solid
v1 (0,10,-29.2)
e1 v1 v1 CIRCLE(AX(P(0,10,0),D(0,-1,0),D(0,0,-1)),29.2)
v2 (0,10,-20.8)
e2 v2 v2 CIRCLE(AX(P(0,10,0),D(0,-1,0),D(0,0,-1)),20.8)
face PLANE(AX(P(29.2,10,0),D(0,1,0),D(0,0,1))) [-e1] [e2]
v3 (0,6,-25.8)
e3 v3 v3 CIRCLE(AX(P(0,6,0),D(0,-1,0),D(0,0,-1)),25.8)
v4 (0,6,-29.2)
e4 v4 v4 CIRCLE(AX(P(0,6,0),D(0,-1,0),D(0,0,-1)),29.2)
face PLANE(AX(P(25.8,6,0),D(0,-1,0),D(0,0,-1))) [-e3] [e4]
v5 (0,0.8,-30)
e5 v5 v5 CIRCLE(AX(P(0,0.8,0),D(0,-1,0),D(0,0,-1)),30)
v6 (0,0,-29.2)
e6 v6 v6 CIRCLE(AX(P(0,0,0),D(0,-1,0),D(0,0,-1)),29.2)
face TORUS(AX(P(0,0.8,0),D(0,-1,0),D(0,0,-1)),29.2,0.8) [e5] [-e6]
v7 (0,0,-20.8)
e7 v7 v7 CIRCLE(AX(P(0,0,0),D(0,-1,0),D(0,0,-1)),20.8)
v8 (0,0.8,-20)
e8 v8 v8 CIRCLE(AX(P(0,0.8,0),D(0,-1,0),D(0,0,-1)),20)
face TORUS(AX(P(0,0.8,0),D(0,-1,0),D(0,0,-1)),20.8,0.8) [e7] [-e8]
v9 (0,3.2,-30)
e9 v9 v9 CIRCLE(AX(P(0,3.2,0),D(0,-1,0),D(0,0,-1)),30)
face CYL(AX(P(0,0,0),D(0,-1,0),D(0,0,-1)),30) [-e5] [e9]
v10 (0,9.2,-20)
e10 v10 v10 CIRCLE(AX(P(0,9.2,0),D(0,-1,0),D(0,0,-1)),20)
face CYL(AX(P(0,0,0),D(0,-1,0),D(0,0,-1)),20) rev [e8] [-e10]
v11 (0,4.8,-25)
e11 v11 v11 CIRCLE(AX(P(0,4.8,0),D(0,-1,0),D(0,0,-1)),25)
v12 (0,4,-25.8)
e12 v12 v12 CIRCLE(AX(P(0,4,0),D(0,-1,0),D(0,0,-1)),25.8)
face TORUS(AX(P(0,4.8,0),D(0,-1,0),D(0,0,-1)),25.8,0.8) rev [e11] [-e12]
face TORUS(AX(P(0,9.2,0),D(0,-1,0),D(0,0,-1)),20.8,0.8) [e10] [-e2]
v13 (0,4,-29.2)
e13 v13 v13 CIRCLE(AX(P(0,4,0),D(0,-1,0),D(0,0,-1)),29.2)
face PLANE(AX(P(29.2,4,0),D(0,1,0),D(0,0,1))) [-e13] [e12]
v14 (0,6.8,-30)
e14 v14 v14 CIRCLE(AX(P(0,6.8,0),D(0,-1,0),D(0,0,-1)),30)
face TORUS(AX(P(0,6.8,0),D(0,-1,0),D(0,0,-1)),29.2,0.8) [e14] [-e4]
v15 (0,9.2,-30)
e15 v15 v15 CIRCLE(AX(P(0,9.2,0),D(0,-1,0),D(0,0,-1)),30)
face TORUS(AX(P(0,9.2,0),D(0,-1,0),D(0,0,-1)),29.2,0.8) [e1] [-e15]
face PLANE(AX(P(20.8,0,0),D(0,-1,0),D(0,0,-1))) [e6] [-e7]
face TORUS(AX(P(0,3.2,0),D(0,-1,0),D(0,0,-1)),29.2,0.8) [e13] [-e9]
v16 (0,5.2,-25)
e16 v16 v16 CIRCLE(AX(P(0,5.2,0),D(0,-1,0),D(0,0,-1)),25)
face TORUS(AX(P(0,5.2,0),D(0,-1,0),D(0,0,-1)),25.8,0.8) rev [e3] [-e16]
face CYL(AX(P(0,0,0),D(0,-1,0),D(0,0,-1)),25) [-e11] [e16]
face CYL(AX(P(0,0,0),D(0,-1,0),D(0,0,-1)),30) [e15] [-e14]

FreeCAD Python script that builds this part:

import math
import FreeCAD as App
import Part
import Sketcher
from FreeCAD import Vector

doc = App.newDocument("Part")
params = doc.addObject("Spreadsheet::Sheet", "Params")
for row, (alias, value) in enumerate([
    ("sketch1_radius", "0.8 mm"),
    ("sketch1_width", "8.4 mm"),
    ("sketch1_width2", "3.4 mm"),
    ("sketch1_height", "2.4 mm"),
    ("revolution_angle", "360 deg"),
], start=1):
    params.set(f"A{row}", alias)
    params.set(f"B{row}", "=" + value)
    params.setAlias(f"B{row}", alias)

body = doc.addObject("PartDesign::Body", "Body")

# Sketch on XY plane
sketch1 = doc.addObject("Sketcher::SketchObject", "Sketch")
body.addObject(sketch1)
sketch1.AttachmentSupport = (doc.XY_Plane, [""])
sketch1.MapMode = "FlatFace"
sketch1.addGeometry(Part.LineSegment(Vector(20, 9.2, 0), Vector(20, 0.8, 0)), False)
sketch1.addGeometry(Part.ArcOfCircle(Part.Circle(Vector(20.8, 0.8, 0), Vector(0, 0, 1), 0.8), math.radians(180), math.radians(270)), False)
sketch1.addGeometry(Part.LineSegment(Vector(20.8, 0, 0), Vector(29.2, 0, 0)), False)
sketch1.addGeometry(Part.ArcOfCircle(Part.Circle(Vector(29.2, 0.8, 0), Vector(0, 0, 1), 0.8), math.radians(-90), math.radians(0)), False)
sketch1.addGeometry(Part.LineSegment(Vector(30, 0.8, 0), Vector(30, 3.2, 0)), False)
sketch1.addGeometry(Part.ArcOfCircle(Part.Circle(Vector(29.2, 3.2, 0), Vector(0, 0, 1), 0.8), math.radians(0), math.radians(90)), False)
sketch1.addGeometry(Part.LineSegment(Vector(29.2, 4, 0), Vector(25.8, 4, 0)), False)
sketch1.addGeometry(Part.ArcOfCircle(Part.Circle(Vector(25.8, 4.8, 0), Vector(0, 0, 1), 0.8), math.radians(180), math.radians(270)), False)
sketch1.addGeometry(Part.LineSegment(Vector(25, 4.8, 0), Vector(25, 5.2, 0)), False)
sketch1.addGeometry(Part.ArcOfCircle(Part.Circle(Vector(25.8, 5.2, 0), Vector(0, 0, 1), 0.8), math.radians(90), math.radians(180)), False)
sketch1.addGeometry(Part.LineSegment(Vector(25.8, 6, 0), Vector(29.2, 6, 0)), False)
sketch1.addGeometry(Part.ArcOfCircle(Part.Circle(Vector(29.2, 6.8, 0), Vector(0, 0, 1), 0.8), math.radians(-90), math.radians(0)), False)
sketch1.addGeometry(Part.LineSegment(Vector(30, 6.8, 0), Vector(30, 9.2, 0)), False)
sketch1.addGeometry(Part.ArcOfCircle(Part.Circle(Vector(29.2, 9.2, 0), Vector(0, 0, 1), 0.8), math.radians(0), math.radians(90)), False)
sketch1.addGeometry(Part.LineSegment(Vector(29.2, 10, 0), Vector(20.8, 10, 0)), False)
sketch1.addGeometry(Part.ArcOfCircle(Part.Circle(Vector(20.8, 9.2, 0), Vector(0, 0, 1), 0.8), math.radians(90), math.radians(180)), False)
sketch1.addConstraint(Sketcher.Constraint("Tangent", 0, 2, 1, 1))
sketch1.addConstraint(Sketcher.Constraint("Tangent", 1, 2, 2, 1))
sketch1.addConstraint(Sketcher.Constraint("Tangent", 2, 2, 3, 1))
sketch1.addConstraint(Sketcher.Constraint("Tangent", 3, 2, 4, 1))
sketch1.addConstraint(Sketcher.Constraint("Tangent", 4, 2, 5, 1))
sketch1.addConstraint(Sketcher.Constraint("Tangent", 5, 2, 6, 1))
sketch1.addConstraint(Sketcher.Constraint("Tangent", 6, 2, 7, 2))
sketch1.addConstraint(Sketcher.Constraint("Tangent", 7, 1, 8, 1))
sketch1.addConstraint(Sketcher.Constraint("Tangent", 8, 2, 9, 2))
sketch1.addConstraint(Sketcher.Constraint("Tangent", 9, 1, 10, 1))
sketch1.addConstraint(Sketcher.Constraint("Tangent", 10, 2, 11, 1))
sketch1.addConstraint(Sketcher.Constraint("Tangent", 11, 2, 12, 1))
sketch1.addConstraint(Sketcher.Constraint("Tangent", 12, 2, 13, 1))
sketch1.addConstraint(Sketcher.Constraint("Tangent", 13, 2, 14, 1))
sketch1.addConstraint(Sketcher.Constraint("Tangent", 14, 2, 15, 1))
sketch1.addConstraint(Sketcher.Constraint("Tangent", 15, 2, 0, 1))
sketch1.addConstraint(Sketcher.Constraint("Vertical", 0))
sketch1.addConstraint(Sketcher.Constraint("Horizontal", 2))
sketch1.addConstraint(Sketcher.Constraint("Vertical", 4))
sketch1.addConstraint(Sketcher.Constraint("Horizontal", 6))
sketch1.addConstraint(Sketcher.Constraint("Vertical", 8))
sketch1.addConstraint(Sketcher.Constraint("Horizontal", 10))
sketch1.addConstraint(Sketcher.Constraint("Vertical", 12))
sketch1.addConstraint(Sketcher.Constraint("Horizontal", 14))
sketch1.addConstraint(Sketcher.Constraint("Equal", 1, 3))
sketch1.addConstraint(Sketcher.Constraint("Equal", 3, 5))
sketch1.addConstraint(Sketcher.Constraint("Equal", 5, 7))
sketch1.addConstraint(Sketcher.Constraint("Equal", 7, 9))
sketch1.addConstraint(Sketcher.Constraint("Equal", 9, 11))
sketch1.addConstraint(Sketcher.Constraint("Equal", 11, 13))
sketch1.addConstraint(Sketcher.Constraint("Equal", 13, 15))
sketch1.addConstraint(Sketcher.Constraint("PointOnObject", 1, 2, -1))
sketch1.addConstraint(Sketcher.Constraint("Vertical", 5, 3, 11, 3))
sketch1.addConstraint(Sketcher.Constraint("Equal", 14, 0))
sketch1.addConstraint(Sketcher.Constraint("Equal", 4, 12))
sketch1.addConstraint(Sketcher.Constraint("Radius", 1, 0.8))
sketch1.addConstraint(Sketcher.Constraint("DistanceX", 2, 1, 2, 2, 8.4))
sketch1.addConstraint(Sketcher.Constraint("DistanceX", 6, 2, 6, 1, 3.4))
sketch1.addConstraint(Sketcher.Constraint("DistanceY", 4, 1, 4, 2, 2.4))
sketch1.addConstraint(Sketcher.Constraint("DistanceX", -1, 1, 0, 2, 20.0))
sketch1.setExpression("Constraints[35]", "Params.sketch1_radius")
sketch1.setExpression("Constraints[36]", "Params.sketch1_width")
sketch1.setExpression("Constraints[37]", "Params.sketch1_width2")
sketch1.setExpression("Constraints[38]", "Params.sketch1_height")
revolution = doc.addObject("PartDesign::Revolution", "Revolution")
body.addObject(revolution)
revolution.Profile = sketch1
revolution.ReferenceAxis = (sketch1, ["V_Axis"])
revolution.setExpression("Angle", "Params.revolution_angle")

doc.recompute()
